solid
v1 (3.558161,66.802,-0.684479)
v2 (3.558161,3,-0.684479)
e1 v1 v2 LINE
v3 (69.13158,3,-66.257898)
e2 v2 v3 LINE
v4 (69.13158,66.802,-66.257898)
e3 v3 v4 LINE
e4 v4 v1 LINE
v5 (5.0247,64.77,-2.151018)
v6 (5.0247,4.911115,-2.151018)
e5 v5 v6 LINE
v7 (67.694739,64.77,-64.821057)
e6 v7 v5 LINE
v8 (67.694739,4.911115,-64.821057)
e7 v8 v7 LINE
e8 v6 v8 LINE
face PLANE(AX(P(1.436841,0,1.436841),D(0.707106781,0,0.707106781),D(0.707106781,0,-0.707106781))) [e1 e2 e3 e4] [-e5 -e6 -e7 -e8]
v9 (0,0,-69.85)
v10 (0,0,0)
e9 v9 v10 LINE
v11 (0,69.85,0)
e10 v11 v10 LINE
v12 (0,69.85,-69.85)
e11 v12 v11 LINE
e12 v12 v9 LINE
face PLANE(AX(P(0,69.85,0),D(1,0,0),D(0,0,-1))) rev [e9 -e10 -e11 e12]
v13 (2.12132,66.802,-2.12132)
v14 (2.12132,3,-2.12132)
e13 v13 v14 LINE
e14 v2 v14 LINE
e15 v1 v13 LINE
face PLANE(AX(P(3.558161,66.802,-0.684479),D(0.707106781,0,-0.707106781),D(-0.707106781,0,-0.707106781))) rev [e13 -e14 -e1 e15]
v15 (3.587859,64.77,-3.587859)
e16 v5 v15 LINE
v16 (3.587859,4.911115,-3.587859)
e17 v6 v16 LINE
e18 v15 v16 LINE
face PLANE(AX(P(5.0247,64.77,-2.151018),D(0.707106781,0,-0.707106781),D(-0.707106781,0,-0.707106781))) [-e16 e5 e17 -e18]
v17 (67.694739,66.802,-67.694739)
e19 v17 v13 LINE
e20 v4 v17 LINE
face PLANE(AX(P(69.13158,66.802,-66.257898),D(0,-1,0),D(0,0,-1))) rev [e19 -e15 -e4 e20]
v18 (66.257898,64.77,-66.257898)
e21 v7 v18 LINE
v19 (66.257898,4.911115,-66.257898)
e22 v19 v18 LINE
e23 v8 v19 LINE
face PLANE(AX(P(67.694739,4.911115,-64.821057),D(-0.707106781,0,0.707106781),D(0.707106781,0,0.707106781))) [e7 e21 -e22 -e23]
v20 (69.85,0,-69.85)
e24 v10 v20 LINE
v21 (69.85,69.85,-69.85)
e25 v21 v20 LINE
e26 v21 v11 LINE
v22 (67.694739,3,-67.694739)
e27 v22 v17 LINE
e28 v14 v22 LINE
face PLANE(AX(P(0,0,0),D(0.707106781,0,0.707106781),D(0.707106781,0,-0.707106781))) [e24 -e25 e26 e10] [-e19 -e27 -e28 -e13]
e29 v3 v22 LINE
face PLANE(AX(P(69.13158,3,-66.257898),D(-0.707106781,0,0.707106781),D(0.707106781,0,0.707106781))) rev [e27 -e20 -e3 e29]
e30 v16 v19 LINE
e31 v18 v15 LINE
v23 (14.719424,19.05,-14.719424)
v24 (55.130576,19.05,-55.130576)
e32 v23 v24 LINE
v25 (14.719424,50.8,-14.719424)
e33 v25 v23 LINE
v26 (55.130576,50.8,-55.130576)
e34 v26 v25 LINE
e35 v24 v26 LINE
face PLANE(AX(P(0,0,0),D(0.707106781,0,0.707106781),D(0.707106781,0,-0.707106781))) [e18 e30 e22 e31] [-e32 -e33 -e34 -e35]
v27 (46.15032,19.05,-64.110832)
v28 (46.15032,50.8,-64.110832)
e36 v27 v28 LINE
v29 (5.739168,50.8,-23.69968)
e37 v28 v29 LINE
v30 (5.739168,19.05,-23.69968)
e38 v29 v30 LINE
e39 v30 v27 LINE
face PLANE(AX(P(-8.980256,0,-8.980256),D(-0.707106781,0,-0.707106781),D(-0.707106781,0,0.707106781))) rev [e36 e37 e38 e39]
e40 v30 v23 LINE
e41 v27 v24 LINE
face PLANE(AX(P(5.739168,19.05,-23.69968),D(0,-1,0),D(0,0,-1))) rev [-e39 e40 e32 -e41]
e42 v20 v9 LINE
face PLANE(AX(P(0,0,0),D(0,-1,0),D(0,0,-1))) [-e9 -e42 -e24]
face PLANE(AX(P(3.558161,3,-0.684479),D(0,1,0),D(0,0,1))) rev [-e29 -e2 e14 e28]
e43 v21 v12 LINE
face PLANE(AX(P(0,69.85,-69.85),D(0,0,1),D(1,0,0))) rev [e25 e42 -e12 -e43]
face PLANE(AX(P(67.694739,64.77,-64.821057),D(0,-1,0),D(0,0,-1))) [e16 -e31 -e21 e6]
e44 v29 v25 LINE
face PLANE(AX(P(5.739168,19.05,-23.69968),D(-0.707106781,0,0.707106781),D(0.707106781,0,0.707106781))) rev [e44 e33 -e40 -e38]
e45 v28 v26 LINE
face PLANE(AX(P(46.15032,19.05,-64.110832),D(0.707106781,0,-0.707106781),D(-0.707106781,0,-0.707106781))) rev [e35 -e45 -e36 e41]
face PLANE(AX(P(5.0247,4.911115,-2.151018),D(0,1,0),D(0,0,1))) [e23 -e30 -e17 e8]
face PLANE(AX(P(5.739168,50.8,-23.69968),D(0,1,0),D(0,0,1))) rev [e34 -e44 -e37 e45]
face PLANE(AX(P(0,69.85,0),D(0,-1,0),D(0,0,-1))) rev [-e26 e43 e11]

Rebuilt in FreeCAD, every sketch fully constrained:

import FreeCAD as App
import Part
import Sketcher

V = App.Vector
Q = App.Units.Quantity

doc = App.newDocument("Part")
body = doc.addObject("PartDesign::Body", "Body")

# Sketch on XZ plane
sketch1 = body.newObject("Sketcher::SketchObject", "Sketch")
sketch1.AttachmentSupport = (doc.getObject("XZ_Plane"), [""])
sketch1.MapMode = "FlatFace"
sketch1.addGeometry([
    Part.LineSegment(V(0, -70, 0), V(0, 0, 0)),
    Part.LineSegment(V(0, 0, 0), V(70, 0, 0)),
    Part.LineSegment(V(70, 0, 0), V(70, -70, 0)),
    Part.LineSegment(V(70, -70, 0), V(0, -70, 0)),
], False)
sketch1.addConstraint([
    Sketcher.Constraint("Coincident", 0, 2, 1, 1),
    Sketcher.Constraint("Coincident", 1, 2, 2, 1),
    Sketcher.Constraint("Coincident", 2, 2, 3, 1),
    Sketcher.Constraint("Coincident", 3, 2, 0, 1),
    Sketcher.Constraint("Vertical", 0),
    Sketcher.Constraint("Horizontal", 1),
    Sketcher.Constraint("Vertical", 2),
    Sketcher.Constraint("Horizontal", 3),
    Sketcher.Constraint("Coincident", 0, 2, -1, 1),
    Sketcher.Constraint("Equal", 3, 0),
    Sketcher.Constraint("DistanceX", 1, 1, 1, 2, Q("2.75 in")),
])
pad1 = body.newObject("PartDesign::Pad", "Pad")
pad1.Profile = sketch1
pad1.Length = Q("2.75 in")
pad1.Reversed = True

# Sketch on an angled plane
sketch2 = body.newObject("Sketcher::SketchObject", "Sketch001")
sketch2.Placement = App.Placement(V(0, 0, 0), App.Rotation(V(0.707106781, 0, -0.707106781), V(0, 0.999999999, 0), V(0.707106781, 0, 0.707106781), "ZXY"))
sketch2.addGeometry([
    Part.LineSegment(V(99, 0, 0), V(99, 70, 0)),
    Part.LineSegment(V(99, 70, 0), V(0, 70, 0)),
    Part.LineSegment(V(0, 70, 0), V(0, 0, 0)),
    Part.LineSegment(V(0, 0, 0), V(99, 0, 0)),
], False)
sketch2.addConstraint([
    Sketcher.Constraint("Coincident", 0, 2, 1, 1),
    Sketcher.Constraint("Coincident", 1, 2, 2, 1),
    Sketcher.Constraint("Coincident", 2, 2, 3, 1),
    Sketcher.Constraint("Coincident", 3, 2, 0, 1),
    Sketcher.Constraint("Vertical", 0),
    Sketcher.Constraint("Horizontal", 1),
    Sketcher.Constraint("Vertical", 2),
    Sketcher.Constraint("Horizontal", 3),
    Sketcher.Constraint("Coincident", 2, 2, -1, 1),
    Sketcher.Constraint("DistanceY", 0, 1, 0, 2, Q("2.75 in")),
    Sketcher.Constraint("DistanceX", 1, 2, 1, 1, Q("98.782817 mm")),
])
pocket1 = body.newObject("PartDesign::Pocket", "Pocket")
pocket1.Profile = sketch2
pocket1.Length = 100
pocket1.Reversed = True

# Sketch on an angled plane
sketch3 = body.newObject("Sketcher::SketchObject", "Sketch002")
sketch3.Placement = App.Placement(V(0, 0, 0), App.Rotation(V(0.707106781, 0, -0.707106781), V(0, 0.999999999, 0), V(0.707106781, 0, 0.707106781), "ZXY"))
sketch3.addGeometry([
    Part.LineSegment(V(3, 67, 0), V(3, 3, 0)),  # 0
    Part.LineSegment(V(3, 3, 0), V(96, 3, 0)),  # 1
    Part.LineSegment(V(96, 3, 0), V(96, 67, 0)),  # 2
    Part.LineSegment(V(96, 67, 0), V(3, 67, 0)),  # 3
    Part.LineSegment(V(94, 5, 0), V(5, 5, 0)),  # 4
    Part.LineSegment(V(5, 5, 0), V(5, 65, 0)),  # 5
    Part.LineSegment(V(5, 65, 0), V(94, 65, 0)),  # 6
    Part.LineSegment(V(94, 65, 0), V(94, 5, 0)),  # 7
], False)
sketch3.addConstraint([
    Sketcher.Constraint("Coincident", 0, 2, 1, 1),
    Sketcher.Constraint("Coincident", 1, 2, 2, 1),
    Sketcher.Constraint("Coincident", 2, 2, 3, 1),
    Sketcher.Constraint("Coincident", 3, 2, 0, 1),
    Sketcher.Constraint("Coincident", 4, 2, 5, 1),
    Sketcher.Constraint("Coincident", 5, 2, 6, 1),
    Sketcher.Constraint("Coincident", 6, 2, 7, 1),
    Sketcher.Constraint("Coincident", 7, 2, 4, 1),
    Sketcher.Constraint("Vertical", 0),
    Sketcher.Constraint("Horizontal", 1),
    Sketcher.Constraint("Vertical", 2),
    Sketcher.Constraint("Horizontal", 3),
    Sketcher.Constraint("Horizontal", 4),
    Sketcher.Constraint("Vertical", 5),
    Sketcher.Constraint("Horizontal", 6),
    Sketcher.Constraint("Vertical", 7),
    Sketcher.Constraint("DistanceY", -1, 1, 2, 2, Q("2.63 in")),
    Sketcher.Constraint("DistanceY", -1, 1, 5, 2, Q("2.55 in")),
    Sketcher.Constraint("DistanceX", 6, 2, 2, 2, Q("0.08 in")),
    Sketcher.Constraint("DistanceY", 0, 2, 0, 1, Q("63.802 mm")),
    Sketcher.Constraint("DistanceX", -1, 1, 0, 2, Q("3 mm")),
    Sketcher.Constraint("DistanceX", -1, 1, 4, 2, Q("5.073999 mm")),
    Sketcher.Constraint("DistanceX", 1, 1, 1, 2, Q("92.734817 mm")),
    Sketcher.Constraint("DistanceY", 5, 1, 5, 2, Q("59.858885 mm")),
])
pad2 = body.newObject("PartDesign::Pad", "Pad001")
pad2.Profile = sketch3
pad2.Length = Q("0.08 in")

# Sketch on an angled plane
sketch4 = body.newObject("Sketcher::SketchObject", "Sketch003")
sketch4.Placement = App.Placement(V(0, 0, 0), App.Rotation(V(0.707106781, 0, -0.707106781), V(0, 0.999999999, 0), V(0.707106781, 0, 0.707106781), "ZXY"))
sketch4.addGeometry([
    Part.LineSegment(V(21, 51, 0), V(21, 19, 0)),
    Part.LineSegment(V(21, 19, 0), V(78, 19, 0)),
    Part.LineSegment(V(78, 19, 0), V(78, 51, 0)),
    Part.LineSegment(V(78, 51, 0), V(21, 51, 0)),
], False)
sketch4.addConstraint([
    Sketcher.Constraint("Coincident", 0, 2, 1, 1),
    Sketcher.Constraint("Coincident", 1, 2, 2, 1),
    Sketcher.Constraint("Coincident", 2, 2, 3, 1),
    Sketcher.Constraint("Coincident", 3, 2, 0, 1),
    Sketcher.Constraint("Vertical", 0),
    Sketcher.Constraint("Horizontal", 1),
    Sketcher.Constraint("Vertical", 2),
    Sketcher.Constraint("Horizontal", 3),
    Sketcher.Constraint("DistanceY", -1, 1, 2, 2, Q("2 in")),
    Sketcher.Constraint("DistanceX", 1, 1, 1, 2, Q("2.25 in")),
    Sketcher.Constraint("DistanceY", 0, 2, 0, 1, Q("1.25 in")),
    Sketcher.Constraint("DistanceX", -1, 1, 0, 2, Q("20.816409 mm")),
])
pocket2 = body.newObject("PartDesign::Pocket", "Pocket001")
pocket2.Profile = sketch4
pocket2.Length = Q("0.5 in")

doc.recompute()
